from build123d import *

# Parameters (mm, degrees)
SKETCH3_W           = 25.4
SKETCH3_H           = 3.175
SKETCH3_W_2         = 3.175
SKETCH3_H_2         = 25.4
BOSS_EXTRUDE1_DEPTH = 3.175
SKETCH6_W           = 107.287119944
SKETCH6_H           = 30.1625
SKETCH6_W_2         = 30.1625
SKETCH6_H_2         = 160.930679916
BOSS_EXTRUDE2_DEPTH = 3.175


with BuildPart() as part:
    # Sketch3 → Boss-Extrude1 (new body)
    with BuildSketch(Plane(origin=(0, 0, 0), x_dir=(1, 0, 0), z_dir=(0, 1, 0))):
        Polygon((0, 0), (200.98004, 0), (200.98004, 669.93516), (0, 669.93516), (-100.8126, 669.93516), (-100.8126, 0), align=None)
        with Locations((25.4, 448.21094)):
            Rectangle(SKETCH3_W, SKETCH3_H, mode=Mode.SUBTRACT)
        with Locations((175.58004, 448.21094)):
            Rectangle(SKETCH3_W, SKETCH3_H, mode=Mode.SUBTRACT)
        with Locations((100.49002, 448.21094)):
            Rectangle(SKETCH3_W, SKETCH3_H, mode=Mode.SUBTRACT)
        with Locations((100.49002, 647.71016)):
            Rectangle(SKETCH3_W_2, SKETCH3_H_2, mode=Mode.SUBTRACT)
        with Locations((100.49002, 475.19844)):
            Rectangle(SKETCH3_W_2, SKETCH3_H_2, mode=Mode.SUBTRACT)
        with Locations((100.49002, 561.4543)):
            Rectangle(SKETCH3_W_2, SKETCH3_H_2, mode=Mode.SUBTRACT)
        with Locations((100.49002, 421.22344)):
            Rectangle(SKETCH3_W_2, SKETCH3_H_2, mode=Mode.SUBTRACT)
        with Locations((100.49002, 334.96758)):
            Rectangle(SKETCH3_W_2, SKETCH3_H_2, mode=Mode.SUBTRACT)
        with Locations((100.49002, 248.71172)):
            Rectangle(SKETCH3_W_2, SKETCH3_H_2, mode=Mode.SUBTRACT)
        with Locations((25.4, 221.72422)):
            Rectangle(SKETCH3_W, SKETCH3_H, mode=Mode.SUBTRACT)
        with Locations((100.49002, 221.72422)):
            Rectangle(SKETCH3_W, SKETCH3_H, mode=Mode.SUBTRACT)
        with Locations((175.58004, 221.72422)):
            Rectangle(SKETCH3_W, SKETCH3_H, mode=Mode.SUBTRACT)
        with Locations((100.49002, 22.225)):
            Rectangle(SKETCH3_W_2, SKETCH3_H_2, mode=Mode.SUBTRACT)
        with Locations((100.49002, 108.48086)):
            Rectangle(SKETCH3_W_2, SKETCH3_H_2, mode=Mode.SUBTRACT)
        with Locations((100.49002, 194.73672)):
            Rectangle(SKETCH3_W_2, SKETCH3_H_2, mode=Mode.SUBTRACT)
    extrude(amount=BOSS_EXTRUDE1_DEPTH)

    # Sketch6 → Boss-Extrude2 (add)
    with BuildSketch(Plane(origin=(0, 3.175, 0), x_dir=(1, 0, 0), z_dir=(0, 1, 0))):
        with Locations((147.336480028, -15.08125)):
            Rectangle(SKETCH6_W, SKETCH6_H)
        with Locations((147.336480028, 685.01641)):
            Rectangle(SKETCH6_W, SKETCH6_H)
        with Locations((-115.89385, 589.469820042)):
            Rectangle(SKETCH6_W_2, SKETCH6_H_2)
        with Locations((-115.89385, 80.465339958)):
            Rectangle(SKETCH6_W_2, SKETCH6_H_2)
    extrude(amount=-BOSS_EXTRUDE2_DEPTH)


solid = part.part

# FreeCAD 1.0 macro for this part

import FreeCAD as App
import Part
import Sketcher
from FreeCAD import Vector
Q = App.Units.Quantity


def add_polygon(sketch, points):
    """Adds a closed chain of lines whose ends are joined by coincident constraints."""
    first, n = sketch.GeometryCount, len(points)
    for a, b in zip(points, points[1:] + points[:1]):
        sketch.addGeometry(Part.LineSegment(App.Vector(*a, 0), App.Vector(*b, 0)), False)
    for i in range(n):
        sketch.addConstraint(Sketcher.Constraint("Coincident", first + i, 2, first + (i + 1) % n, 1))

doc = App.newDocument("Part")
body = doc.addObject("PartDesign::Body", "Body")

sketch1 = body.newObject("Sketcher::SketchObject", "Sketch")
sketch1.AttachmentSupport = (doc.getObject("XZ_Plane"), [""])
sketch1.MapMode = "FlatFace"
add_polygon(sketch1, [(200.98004, 0), (200.98004, -669.93516), (-100.8126, -669.93516), (-100.8126, 0)])
add_polygon(sketch1, [(38.1, -220.13672), (12.7, -220.13672), (12.7, -223.31172), (38.1, -223.31172)])
add_polygon(sketch1, [(102.07752, -9.525), (98.90252, -9.525), (98.90252, -34.925), (102.07752, -34.925)])
add_polygon(sketch1, [(102.07752, -95.78086), (98.90252, -95.78086), (98.90252, -121.18086), (102.07752, -121.18086)])
add_polygon(sketch1, [(102.07752, -182.03672), (98.90252, -182.03672), (98.90252, -207.43672), (102.07752, -207.43672)])
add_polygon(sketch1, [(113.19002, -220.13672), (87.79002, -220.13672), (87.79002, -223.31172), (113.19002, -223.31172)])
add_polygon(sketch1, [(102.07752, -236.01172), (98.90252, -236.01172), (98.90252, -261.41172), (102.07752, -261.41172)])
add_polygon(sketch1, [(188.28004, -220.13672), (162.88004, -220.13672), (162.88004, -223.31172), (188.28004, -223.31172)])
add_polygon(sketch1, [(38.1, -446.62344), (12.7, -446.62344), (12.7, -449.79844), (38.1, -449.79844)])
add_polygon(sketch1, [(102.07752, -322.26758), (98.90252, -322.26758), (98.90252, -347.66758), (102.07752, -347.66758)])
add_polygon(sketch1, [(102.07752, -408.52344), (98.90252, -408.52344), (98.90252, -433.92344), (102.07752, -433.92344)])
add_polygon(sketch1, [(113.19002, -446.62344), (87.79002, -446.62344), (87.79002, -449.79844), (113.19002, -449.79844)])
add_polygon(sketch1, [(102.07752, -462.49844), (98.90252, -462.49844), (98.90252, -487.89844), (102.07752, -487.89844)])
add_polygon(sketch1, [(188.28004, -446.62344), (162.88004, -446.62344), (162.88004, -449.79844), (188.28004, -449.79844)])
add_polygon(sketch1, [(102.07752, -548.7543), (98.90252, -548.7543), (98.90252, -574.1543), (102.07752, -574.1543)])
add_polygon(sketch1, [(102.07752, -635.01016), (98.90252, -635.01016), (98.90252, -660.41016), (102.07752, -660.41016)])
sketch1.addConstraint([
    Sketcher.Constraint("Vertical", 0),
    Sketcher.Constraint("Horizontal", 1),
    Sketcher.Constraint("Vertical", 2),
    Sketcher.Constraint("Horizontal", 3),
    Sketcher.Constraint("Horizontal", 4),
    Sketcher.Constraint("Vertical", 5),
    Sketcher.Constraint("Horizontal", 6),
    Sketcher.Constraint("Vertical", 7),
    Sketcher.Constraint("Horizontal", 8),
    Sketcher.Constraint("Vertical", 9),
    Sketcher.Constraint("Horizontal", 10),
    Sketcher.Constraint("Vertical", 11),
    Sketcher.Constraint("Horizontal", 12),
    Sketcher.Constraint("Vertical", 13),
    Sketcher.Constraint("Horizontal", 14),
    Sketcher.Constraint("Vertical", 15),
    Sketcher.Constraint("Horizontal", 16),
    Sketcher.Constraint("Vertical", 17),
    Sketcher.Constraint("Horizontal", 18),
    Sketcher.Constraint("Vertical", 19),
    Sketcher.Constraint("Horizontal", 20),
    Sketcher.Constraint("Vertical", 21),
    Sketcher.Constraint("Horizontal", 22),
    Sketcher.Constraint("Vertical", 23),
    Sketcher.Constraint("Horizontal", 24),
    Sketcher.Constraint("Vertical", 25),
    Sketcher.Constraint("Horizontal", 26),
    Sketcher.Constraint("Vertical", 27),
    Sketcher.Constraint("Horizontal", 28),
    Sketcher.Constraint("Vertical", 29),
    Sketcher.Constraint("Horizontal", 30),
    Sketcher.Constraint("Vertical", 31),
    Sketcher.Constraint("Horizontal", 32),
    Sketcher.Constraint("Vertical", 33),
    Sketcher.Constraint("Horizontal", 34),
    Sketcher.Constraint("Vertical", 35),
    Sketcher.Constraint("Horizontal", 36),
    Sketcher.Constraint("Vertical", 37),
    Sketcher.Constraint("Horizontal", 38),
    Sketcher.Constraint("Vertical", 39),
    Sketcher.Constraint("Horizontal", 40),
    Sketcher.Constraint("Vertical", 41),
    Sketcher.Constraint("Horizontal", 42),
    Sketcher.Constraint("Vertical", 43),
    Sketcher.Constraint("Horizontal", 44),
    Sketcher.Constraint("Vertical", 45),
    Sketcher.Constraint("Horizontal", 46),
    Sketcher.Constraint("Vertical", 47),
    Sketcher.Constraint("Horizontal", 48),
    Sketcher.Constraint("Vertical", 49),
    Sketcher.Constraint("Horizontal", 50),
    Sketcher.Constraint("Vertical", 51),
    Sketcher.Constraint("Horizontal", 52),
    Sketcher.Constraint("Vertical", 53),
    Sketcher.Constraint("Horizontal", 54),
    Sketcher.Constraint("Vertical", 55),
    Sketcher.Constraint("Horizontal", 56),
    Sketcher.Constraint("Vertical", 57),
    Sketcher.Constraint("Horizontal", 58),
    Sketcher.Constraint("Vertical", 59),
    Sketcher.Constraint("Horizontal", 60),
    Sketcher.Constraint("Vertical", 61),
    Sketcher.Constraint("Horizontal", 62),
    Sketcher.Constraint("Vertical", 63),
    Sketcher.Constraint("PointOnObject", 2, 2, -1),
    Sketcher.Constraint("Horizontal", 7, 2, 20, 2),
    Sketcher.Constraint("Horizontal", 6, 2, 21, 2),
    Sketcher.Constraint("Horizontal", 23, 2, 28, 2),
    Sketcher.Constraint("Horizontal", 22, 2, 29, 2),
    Sketcher.Constraint("Horizontal", 35, 2, 44, 2),
    Sketcher.Constraint("Horizontal", 34, 2, 45, 2),
    Sketcher.Constraint("Horizontal", 47, 2, 52, 2),
    Sketcher.Constraint("Horizontal", 46, 2, 53, 2),
    Sketcher.Constraint("Vertical", 9, 2, 12, 2),
    Sketcher.Constraint("Vertical", 11, 2, 14, 2),
    Sketcher.Constraint("Vertical", 13, 2, 16, 2),
    Sketcher.Constraint("Vertical", 15, 2, 18, 2),
    Sketcher.Constraint("Vertical", 17, 2, 24, 2),
    Sketcher.Constraint("Vertical", 19, 2, 26, 2),
    Sketcher.Constraint("Vertical", 5, 2, 32, 2),
    Sketcher.Constraint("Vertical", 7, 2, 34, 2),
    Sketcher.Constraint("Vertical", 25, 2, 36, 2),
    Sketcher.Constraint("Vertical", 27, 2, 38, 2),
    Sketcher.Constraint("Vertical", 37, 2, 40, 2),
    Sketcher.Constraint("Vertical", 39, 2, 42, 2),
    Sketcher.Constraint("Vertical", 21, 2, 44, 2),
    Sketcher.Constraint("Vertical", 23, 2, 46, 2),
    Sketcher.Constraint("Vertical", 41, 2, 48, 2),
    Sketcher.Constraint("Vertical", 43, 2, 50, 2),
    Sketcher.Constraint("Vertical", 29, 2, 52, 2),
    Sketcher.Constraint("Vertical", 31, 2, 54, 2),
    Sketcher.Constraint("Vertical", 49, 2, 56, 2),
    Sketcher.Constraint("Vertical", 51, 2, 58, 2),
    Sketcher.Constraint("Vertical", 57, 2, 60, 2),
    Sketcher.Constraint("Vertical", 59, 2, 62, 2),
    Sketcher.Constraint("Equal", 6, 20),
    Sketcher.Constraint("Equal", 22, 28),
    Sketcher.Constraint("Equal", 62, 5),
    Sketcher.Constraint("Equal", 54, 9),
    Sketcher.Constraint("Equal", 11, 13),
    Sketcher.Constraint("Equal", 15, 17),
    Sketcher.Constraint("Equal", 19, 25),
    Sketcher.Constraint("Equal", 31, 33),
    Sketcher.Constraint("Equal", 27, 37),
    Sketcher.Constraint("Equal", 39, 41),
    Sketcher.Constraint("Equal", 43, 49),
    Sketcher.Constraint("Equal", 51, 57),
    Sketcher.Constraint("Equal", 59, 61),
    Sketcher.Constraint("DistanceX", 4, 2, 4, 1, Q("1 in")),
    Sketcher.Constraint("DistanceX", -1, 1, 4, 2, Q("0.5 in")),
    Sketcher.Constraint("DistanceX", 8, 2, 8, 1, Q("0.125 in")),
    Sketcher.Constraint("DistanceX", 1, 2, 1, 1, Q("11.8816 in")),
    Sketcher.Constraint("DistanceY", 0, 2, 0, 1, Q("26.3754 in")),
    Sketcher.Constraint("DistanceX", 1, 2, -1, 1, Q("3.969 in")),
    Sketcher.Constraint("DistanceY", 8, 2, -1, 1, Q("0.375 in")),
    Sketcher.Constraint("DistanceY", 4, 2, -1, 1, Q("8.6668 in")),
    Sketcher.Constraint("DistanceX", -1, 1, 8, 2, Q("3.8938 in")),
    Sketcher.Constraint("DistanceY", 12, 2, -1, 1, Q("3.7709 in")),
    Sketcher.Constraint("DistanceY", 16, 2, -1, 1, Q("7.1668 in")),
    Sketcher.Constraint("DistanceX", -1, 1, 20, 2, Q("3.4563 in")),
    Sketcher.Constraint("DistanceY", 24, 2, -1, 1, Q("9.2918 in")),
    Sketcher.Constraint("DistanceX", -1, 1, 28, 2, Q("6.4126 in")),
    Sketcher.Constraint("DistanceY", 32, 2, -1, 1, Q("17.5836 in")),
    Sketcher.Constraint("DistanceY", 36, 2, -1, 1, Q("12.6877 in")),
    Sketcher.Constraint("DistanceY", 40, 2, -1, 1, Q("16.0836 in")),
    Sketcher.Constraint("DistanceY", 48, 2, -1, 1, Q("18.2086 in")),
    Sketcher.Constraint("DistanceY", 56, 2, -1, 1, Q("21.6045 in")),
    Sketcher.Constraint("DistanceY", 60, 2, -1, 1, Q("25.0004 in")),
])
pad1 = body.newObject("PartDesign::Pad", "Pad")
pad1.Profile = sketch1
pad1.Length = Q("0.125 in")
pad1.Reversed = True

sketch2 = body.newObject("Sketcher::SketchObject", "Sketch001")
sketch2.AttachmentSupport = (doc.getObject("XZ_Plane"), [""])
sketch2.MapMode = "FlatFace"
sketch2.AttachmentOffset = App.Placement(Vector(0, 0, -0.125 * 25.4), App.Rotation())
add_polygon(sketch2, [(93.69292, 0), (93.69292, 30.1625), (200.98004, 30.1625), (200.98004, 0)])
add_polygon(sketch2, [(93.69292, -700.09766), (93.69292, -669.93516), (200.98004, -669.93516), (200.98004, -700.09766)])
add_polygon(sketch2, [(-130.9751, -669.93516), (-130.9751, -509.00448), (-100.8126, -509.00448), (-100.8126, -669.93516)])
add_polygon(sketch2, [(-130.9751, -160.93068), (-130.9751, 0), (-100.8126, 0), (-100.8126, -160.93068)])
sketch2.addConstraint([
    Sketcher.Constraint("Vertical", 0),
    Sketcher.Constraint("Horizontal", 1),
    Sketcher.Constraint("Vertical", 2),
    Sketcher.Constraint("Horizontal", 3),
    Sketcher.Constraint("Vertical", 4),
    Sketcher.Constraint("Horizontal", 5),
    Sketcher.Constraint("Vertical", 6),
    Sketcher.Constraint("Horizontal", 7),
    Sketcher.Constraint("Vertical", 8),
    Sketcher.Constraint("Horizontal", 9),
    Sketcher.Constraint("Vertical", 10),
    Sketcher.Constraint("Horizontal", 11),
    Sketcher.Constraint("Vertical", 12),
    Sketcher.Constraint("Horizontal", 13),
    Sketcher.Constraint("Vertical", 14),
    Sketcher.Constraint("Horizontal", 15),
    Sketcher.Constraint("PointOnObject", 2, 2, -1),
    Sketcher.Constraint("PointOnObject", 12, 2, -1),
    Sketcher.Constraint("Horizontal", 5, 2, 10, 2),
    Sketcher.Constraint("Vertical", 3, 2, 4, 2),
    Sketcher.Constraint("Vertical", 2, 2, 5, 2),
    Sketcher.Constraint("Vertical", 11, 2, 12, 2),
    Sketcher.Constraint("Vertical", 10, 2, 13, 2),
    Sketcher.Constraint("Equal", 15, 0),
    Sketcher.Constraint("Equal", 2, 4),
    Sketcher.Constraint("Equal", 10, 12),
    Sketcher.Constraint("DistanceX", 9, 1, 9, 2, Q("1.1875 in")),
    Sketcher.Constraint("DistanceX", 9, 2, -1, 1, Q("3.969 in")),
    Sketcher.Constraint("DistanceX", -1, 1, 1, 2, Q("7.9126 in")),
    Sketcher.Constraint("DistanceY", 4, 2, -1, 1, Q("26.3754 in")),
    Sketcher.Constraint("DistanceX", 1, 1, 1, 2, Q("107.28712 mm")),
    Sketcher.Constraint("DistanceY", 8, 1, 8, 2, Q("160.93068 mm")),
])
pad2 = body.newObject("PartDesign::Pad", "Pad001")
pad2.Profile = sketch2
pad2.Length = Q("0.125 in")

doc.recompute()
